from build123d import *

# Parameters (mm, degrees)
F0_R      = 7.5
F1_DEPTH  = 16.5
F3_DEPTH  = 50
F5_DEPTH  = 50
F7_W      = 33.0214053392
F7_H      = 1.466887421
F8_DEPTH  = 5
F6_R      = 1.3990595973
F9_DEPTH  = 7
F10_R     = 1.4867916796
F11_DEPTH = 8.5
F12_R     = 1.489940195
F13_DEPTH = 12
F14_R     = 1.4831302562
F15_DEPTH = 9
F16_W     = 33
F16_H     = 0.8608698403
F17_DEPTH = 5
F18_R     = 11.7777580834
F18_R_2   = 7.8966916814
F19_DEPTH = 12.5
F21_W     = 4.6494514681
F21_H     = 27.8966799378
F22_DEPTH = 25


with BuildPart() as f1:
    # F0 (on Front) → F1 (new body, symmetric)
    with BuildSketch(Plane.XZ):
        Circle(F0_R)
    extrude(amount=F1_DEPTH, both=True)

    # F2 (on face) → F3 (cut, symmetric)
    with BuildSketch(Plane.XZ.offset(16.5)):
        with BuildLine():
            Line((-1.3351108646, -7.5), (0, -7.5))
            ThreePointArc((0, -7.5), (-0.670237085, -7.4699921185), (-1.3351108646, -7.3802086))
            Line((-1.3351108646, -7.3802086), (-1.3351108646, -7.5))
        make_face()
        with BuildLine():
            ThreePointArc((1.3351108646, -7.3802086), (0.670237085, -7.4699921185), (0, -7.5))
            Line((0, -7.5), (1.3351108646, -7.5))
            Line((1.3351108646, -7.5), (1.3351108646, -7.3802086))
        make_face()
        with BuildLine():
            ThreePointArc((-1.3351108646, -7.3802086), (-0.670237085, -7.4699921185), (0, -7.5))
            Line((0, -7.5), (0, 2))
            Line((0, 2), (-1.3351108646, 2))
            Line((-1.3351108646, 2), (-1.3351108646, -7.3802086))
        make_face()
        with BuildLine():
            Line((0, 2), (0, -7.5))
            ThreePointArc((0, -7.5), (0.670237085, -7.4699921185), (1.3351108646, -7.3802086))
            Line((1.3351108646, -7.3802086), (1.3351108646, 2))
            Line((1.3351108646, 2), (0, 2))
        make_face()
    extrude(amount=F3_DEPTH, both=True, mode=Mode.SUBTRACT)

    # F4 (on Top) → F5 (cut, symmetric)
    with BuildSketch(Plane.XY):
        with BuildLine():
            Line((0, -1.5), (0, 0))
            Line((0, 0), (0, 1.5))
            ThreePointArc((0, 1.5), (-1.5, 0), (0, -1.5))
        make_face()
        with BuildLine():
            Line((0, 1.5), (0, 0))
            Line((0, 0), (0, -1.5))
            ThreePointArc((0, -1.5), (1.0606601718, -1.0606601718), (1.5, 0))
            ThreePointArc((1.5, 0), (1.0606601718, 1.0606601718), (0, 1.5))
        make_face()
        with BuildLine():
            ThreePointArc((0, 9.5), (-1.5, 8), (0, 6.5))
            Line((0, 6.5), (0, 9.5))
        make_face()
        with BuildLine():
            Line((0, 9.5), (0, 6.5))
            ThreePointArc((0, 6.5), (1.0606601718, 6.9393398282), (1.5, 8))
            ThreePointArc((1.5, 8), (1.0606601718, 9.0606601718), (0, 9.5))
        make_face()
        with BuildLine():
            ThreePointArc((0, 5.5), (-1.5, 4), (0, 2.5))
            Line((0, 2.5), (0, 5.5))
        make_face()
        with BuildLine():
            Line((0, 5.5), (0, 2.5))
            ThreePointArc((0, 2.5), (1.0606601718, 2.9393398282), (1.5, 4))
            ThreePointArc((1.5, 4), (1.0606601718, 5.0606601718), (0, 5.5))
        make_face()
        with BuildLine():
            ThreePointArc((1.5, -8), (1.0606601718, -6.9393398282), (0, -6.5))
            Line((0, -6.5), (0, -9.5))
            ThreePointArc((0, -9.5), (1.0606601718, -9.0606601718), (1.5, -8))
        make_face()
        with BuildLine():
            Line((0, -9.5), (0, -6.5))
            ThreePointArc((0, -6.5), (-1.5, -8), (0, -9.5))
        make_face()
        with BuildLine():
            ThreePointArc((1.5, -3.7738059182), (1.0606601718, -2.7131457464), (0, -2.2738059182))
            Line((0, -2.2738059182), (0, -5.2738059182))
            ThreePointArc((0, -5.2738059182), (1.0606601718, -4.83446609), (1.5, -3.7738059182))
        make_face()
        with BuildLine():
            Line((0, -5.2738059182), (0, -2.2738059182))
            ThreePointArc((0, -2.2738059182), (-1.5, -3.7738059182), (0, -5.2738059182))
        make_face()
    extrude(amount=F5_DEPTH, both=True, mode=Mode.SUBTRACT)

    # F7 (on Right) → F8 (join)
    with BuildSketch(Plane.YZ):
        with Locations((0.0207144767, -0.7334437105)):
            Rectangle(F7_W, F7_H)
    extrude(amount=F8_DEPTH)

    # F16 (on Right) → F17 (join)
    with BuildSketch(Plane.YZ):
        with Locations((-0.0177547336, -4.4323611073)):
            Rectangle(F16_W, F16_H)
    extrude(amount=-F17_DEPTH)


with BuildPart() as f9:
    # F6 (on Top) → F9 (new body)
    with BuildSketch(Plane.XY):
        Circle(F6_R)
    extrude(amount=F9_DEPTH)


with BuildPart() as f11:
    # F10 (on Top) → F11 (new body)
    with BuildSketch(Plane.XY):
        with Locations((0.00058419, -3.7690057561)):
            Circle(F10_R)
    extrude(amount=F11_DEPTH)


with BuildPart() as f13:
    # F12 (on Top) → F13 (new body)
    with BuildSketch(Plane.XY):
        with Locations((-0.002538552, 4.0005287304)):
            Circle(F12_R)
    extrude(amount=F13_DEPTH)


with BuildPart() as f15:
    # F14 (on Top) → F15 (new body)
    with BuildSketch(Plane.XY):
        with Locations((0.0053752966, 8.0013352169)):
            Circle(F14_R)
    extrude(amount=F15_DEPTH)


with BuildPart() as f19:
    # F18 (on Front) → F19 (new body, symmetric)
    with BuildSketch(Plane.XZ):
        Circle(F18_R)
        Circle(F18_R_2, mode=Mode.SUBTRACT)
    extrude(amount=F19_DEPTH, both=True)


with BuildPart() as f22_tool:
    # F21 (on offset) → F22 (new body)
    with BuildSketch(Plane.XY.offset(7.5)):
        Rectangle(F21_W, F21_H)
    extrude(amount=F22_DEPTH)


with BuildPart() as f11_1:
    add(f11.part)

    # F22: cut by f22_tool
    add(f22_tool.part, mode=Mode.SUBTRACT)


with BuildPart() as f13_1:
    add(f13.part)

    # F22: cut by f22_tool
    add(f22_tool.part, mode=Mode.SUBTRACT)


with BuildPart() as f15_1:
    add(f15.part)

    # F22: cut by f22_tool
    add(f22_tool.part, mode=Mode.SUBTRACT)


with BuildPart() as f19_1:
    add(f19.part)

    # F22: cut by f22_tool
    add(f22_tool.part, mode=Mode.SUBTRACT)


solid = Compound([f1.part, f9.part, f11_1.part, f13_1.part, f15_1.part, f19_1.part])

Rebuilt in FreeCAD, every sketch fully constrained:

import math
import FreeCAD as App
import Part
import Sketcher
Q = App.Units.Quantity


def add_polygon(sketch, points):
    """Adds a closed chain of lines whose ends are joined by coincident constraints."""
    first, n = sketch.GeometryCount, len(points)
    for a, b in zip(points, points[1:] + points[:1]):
        sketch.addGeometry(Part.LineSegment(App.Vector(*a, 0), App.Vector(*b, 0)), False)
    for i in range(n):
        sketch.addConstraint(Sketcher.Constraint("Coincident", first + i, 2, first + (i + 1) % n, 1))

doc = App.newDocument("Part")
body = doc.addObject("PartDesign::Body", "Body")

sketch1 = doc.addObject("Sketcher::SketchObject", "Sketch")
body.addObject(sketch1)
sketch1.AttachmentSupport = (doc.XZ_Plane, [""])
sketch1.MapMode = "FlatFace"
sketch1.addGeometry(Part.Circle(App.Vector(0, 0, 0), App.Vector(0, 0, 1), 7.5), False)
sketch1.addConstraint(Sketcher.Constraint("Coincident", 0, 3, -1, 1))
sketch1.addConstraint(Sketcher.Constraint("Diameter", 0, Q("15 mm")))
pad1 = doc.addObject("PartDesign::Pad", "Pad")
body.addObject(pad1)
pad1.Profile = sketch1
pad1.Length = 33
pad1.Midplane = True

sketch2 = doc.addObject("Sketcher::SketchObject", "Sketch001")
body.addObject(sketch2)
sketch2.AttachmentSupport = (doc.XZ_Plane, [""])
sketch2.MapMode = "FlatFace"
sketch2.AttachmentOffset = App.Placement(App.Vector(0, 0, 16.5), App.Rotation())
add_polygon(sketch2, [(-1.335111, -7.5), (1.335111, -7.5), (1.335111, 2), (-1.335111, 2)])
sketch2.addConstraint(Sketcher.Constraint("Horizontal", 0))
sketch2.addConstraint(Sketcher.Constraint("Vertical", 1))
sketch2.addConstraint(Sketcher.Constraint("Horizontal", 2))
sketch2.addConstraint(Sketcher.Constraint("Vertical", 3))
sketch2.addConstraint(Sketcher.Constraint("DistanceY", 1, 1, 1, 2, Q("9.5 mm")))
sketch2.addConstraint(Sketcher.Constraint("DistanceY", -1, 1, 1, 2, Q("2 mm")))
sketch2.addConstraint(Sketcher.Constraint("DistanceX", 0, 1, 0, 2, Q("2.670222 mm")))
sketch2.addConstraint(Sketcher.Constraint("DistanceX", -1, 1, 0, 2, Q("1.335111 mm")))
pocket1 = doc.addObject("PartDesign::Pocket", "Pocket")
body.addObject(pocket1)
pocket1.Profile = sketch2
pocket1.Length = 100
pocket1.Midplane = True

sketch3 = doc.addObject("Sketcher::SketchObject", "Sketch002")
body.addObject(sketch3)
sketch3.AttachmentSupport = (doc.XY_Plane, [""])
sketch3.MapMode = "FlatFace"
sketch3.addGeometry(Part.ArcOfCircle(Part.Circle(App.Vector(0, 0, 0), App.Vector(0, 0, 1), 1.5), math.radians(90), math.radians(270)), False)
sketch3.addGeometry(Part.ArcOfCircle(Part.Circle(App.Vector(0, 0, 0), App.Vector(0, 0, 1), 1.5), math.radians(-90), math.radians(0)), False)
sketch3.addGeometry(Part.ArcOfCircle(Part.Circle(App.Vector(0, 0, 0), App.Vector(0, 0, 1), 1.5), math.radians(0), math.radians(90)), False)
sketch3.addGeometry(Part.ArcOfCircle(Part.Circle(App.Vector(0, 8, 0), App.Vector(0, 0, 1), 1.5), math.radians(90), math.radians(270)), False)
sketch3.addGeometry(Part.ArcOfCircle(Part.Circle(App.Vector(0, 8, 0), App.Vector(0, 0, 1), 1.5), math.radians(-90), math.radians(0)), False)
sketch3.addGeometry(Part.ArcOfCircle(Part.Circle(App.Vector(0, 8, 0), App.Vector(0, 0, 1), 1.5), math.radians(0), math.radians(90)), False)
sketch3.addGeometry(Part.ArcOfCircle(Part.Circle(App.Vector(0, 4, 0), App.Vector(0, 0, 1), 1.5), math.radians(90), math.radians(270)), False)
sketch3.addGeometry(Part.ArcOfCircle(Part.Circle(App.Vector(0, 4, 0), App.Vector(0, 0, 1), 1.5), math.radians(-90), math.radians(0)), False)
sketch3.addGeometry(Part.ArcOfCircle(Part.Circle(App.Vector(0, 4, 0), App.Vector(0, 0, 1), 1.5), math.radians(0), math.radians(90)), False)
sketch3.addGeometry(Part.ArcOfCircle(Part.Circle(App.Vector(0, -8, 0), App.Vector(0, 0, 1), 1.5), math.radians(0), math.radians(90)), False)
sketch3.addGeometry(Part.ArcOfCircle(Part.Circle(App.Vector(0, -8, 0), App.Vector(0, 0, 1), 1.5), math.radians(90), math.radians(270)), False)
sketch3.addGeometry(Part.ArcOfCircle(Part.Circle(App.Vector(0, -8, 0), App.Vector(0, 0, 1), 1.5), math.radians(-90), math.radians(0)), False)
sketch3.addGeometry(Part.ArcOfCircle(Part.Circle(App.Vector(0, -3.773806, 0), App.Vector(0, 0, 1), 1.5), math.radians(0), math.radians(90)), False)
sketch3.addGeometry(Part.ArcOfCircle(Part.Circle(App.Vector(0, -3.773806, 0), App.Vector(0, 0, 1), 1.5), math.radians(90), math.radians(270)), False)
sketch3.addGeometry(Part.ArcOfCircle(Part.Circle(App.Vector(0, -3.773806, 0), App.Vector(0, 0, 1), 1.5), math.radians(-90), math.radians(0)), False)
sketch3.addConstraint(Sketcher.Constraint("Tangent", 0, 2, 1, 1))
sketch3.addConstraint(Sketcher.Constraint("Tangent", 1, 2, 2, 1))
sketch3.addConstraint(Sketcher.Constraint("Tangent", 2, 2, 0, 1))
sketch3.addConstraint(Sketcher.Constraint("Tangent", 3, 2, 4, 1))
sketch3.addConstraint(Sketcher.Constraint("Tangent", 4, 2, 5, 1))
sketch3.addConstraint(Sketcher.Constraint("Tangent", 5, 2, 3, 1))
sketch3.addConstraint(Sketcher.Constraint("Tangent", 6, 2, 7, 1))
sketch3.addConstraint(Sketcher.Constraint("Tangent", 7, 2, 8, 1))
sketch3.addConstraint(Sketcher.Constraint("Tangent", 8, 2, 6, 1))
sketch3.addConstraint(Sketcher.Constraint("Tangent", 9, 2, 10, 1))
sketch3.addConstraint(Sketcher.Constraint("Tangent", 10, 2, 11, 1))
sketch3.addConstraint(Sketcher.Constraint("Tangent", 11, 2, 9, 1))
sketch3.addConstraint(Sketcher.Constraint("Tangent", 12, 2, 13, 1))
sketch3.addConstraint(Sketcher.Constraint("Tangent", 13, 2, 14, 1))
sketch3.addConstraint(Sketcher.Constraint("Tangent", 14, 2, 12, 1))
sketch3.addConstraint(Sketcher.Constraint("Coincident", 0, 3, -1, 1))
sketch3.addConstraint(Sketcher.Constraint("Equal", 2, 3))
sketch3.addConstraint(Sketcher.Constraint("Equal", 5, 6))
sketch3.addConstraint(Sketcher.Constraint("Equal", 8, 9))
sketch3.addConstraint(Sketcher.Constraint("Equal", 11, 12))
sketch3.addConstraint(Sketcher.Constraint("Symmetric", 3, 3, 9, 3, -1, 1))
sketch3.addConstraint(Sketcher.Constraint("Symmetric", 4, 2, 11, 2, -1))
sketch3.addConstraint(Sketcher.Constraint("PointOnObject", 6, 3, -2))
sketch3.addConstraint(Sketcher.Constraint("PointOnObject", 12, 3, -2))
sketch3.addConstraint(Sketcher.Constraint("PointOnObject", 0, 2, -2))
sketch3.addConstraint(Sketcher.Constraint("PointOnObject", 1, 2, -1))
sketch3.addConstraint(Sketcher.Constraint("PointOnObject", 2, 2, -2))
sketch3.addConstraint(Sketcher.Constraint("PointOnObject", 3, 2, -2))
sketch3.addConstraint(Sketcher.Constraint("PointOnObject", 5, 2, -2))
sketch3.addConstraint(Sketcher.Constraint("PointOnObject", 6, 2, -2))
sketch3.addConstraint(Sketcher.Constraint("PointOnObject", 8, 2, -2))
sketch3.addConstraint(Sketcher.Constraint("PointOnObject", 9, 2, -2))
sketch3.addConstraint(Sketcher.Constraint("PointOnObject", 10, 2, -2))
sketch3.addConstraint(Sketcher.Constraint("PointOnObject", 12, 2, -2))
sketch3.addConstraint(Sketcher.Constraint("PointOnObject", 13, 2, -2))
sketch3.addConstraint(Sketcher.Constraint("Horizontal", 5, 3, 4, 2))
sketch3.addConstraint(Sketcher.Constraint("Horizontal", 8, 3, 7, 2))
sketch3.addConstraint(Sketcher.Constraint("Horizontal", 13, 3, 14, 2))
sketch3.addConstraint(Sketcher.Constraint("Radius", 0, Q("1.5 mm")))
sketch3.addConstraint(Sketcher.Constraint("DistanceY", -1, 1, 3, 3, Q("8 mm")))
sketch3.addConstraint(Sketcher.Constraint("DistanceY", -1, 1, 6, 3, Q("4 mm")))
sketch3.addConstraint(Sketcher.Constraint("DistanceY", 12, 3, -1, 1, Q("3.773806 mm")))
pocket2 = doc.addObject("PartDesign::Pocket", "Pocket001")
body.addObject(pocket2)
pocket2.Profile = sketch3
pocket2.Length = 100
pocket2.Midplane = True

sketch4 = doc.addObject("Sketcher::SketchObject", "Sketch003")
body.addObject(sketch4)
sketch4.AttachmentSupport = (doc.YZ_Plane, [""])
sketch4.MapMode = "FlatFace"
add_polygon(sketch4, [(-16.489988, 0), (-16.489988, -1.466887), (16.531417, -1.466887), (16.531417, 0)])
sketch4.addConstraint(Sketcher.Constraint("Vertical", 0))
sketch4.addConstraint(Sketcher.Constraint("Horizontal", 1))
sketch4.addConstraint(Sketcher.Constraint("Vertical", 2))
sketch4.addConstraint(Sketcher.Constraint("Horizontal", 3))
sketch4.addConstraint(Sketcher.Constraint("PointOnObject", 2, 2, -1))
sketch4.addConstraint(Sketcher.Constraint("DistanceX", 1, 1, 1, 2, Q("33.021405 mm")))
sketch4.addConstraint(Sketcher.Constraint("DistanceY", 0, 2, 0, 1, Q("1.466887 mm")))
sketch4.addConstraint(Sketcher.Constraint("DistanceX", 0, 2, -1, 1, Q("16.489988 mm")))
pad2 = doc.addObject("PartDesign::Pad", "Pad001")
body.addObject(pad2)
pad2.Profile = sketch4
pad2.Length = 5

sketch5 = doc.addObject("Sketcher::SketchObject", "Sketch004")
body.addObject(sketch5)
sketch5.AttachmentSupport = (doc.YZ_Plane, [""])
sketch5.MapMode = "FlatFace"
add_polygon(sketch5, [(-16.517755, -4.001926), (-16.517755, -4.862796), (16.482245, -4.862796), (16.482245, -4.001926)])
sketch5.addConstraint(Sketcher.Constraint("Vertical", 0))
sketch5.addConstraint(Sketcher.Constraint("Horizontal", 1))
sketch5.addConstraint(Sketcher.Constraint("Vertical", 2))
sketch5.addConstraint(Sketcher.Constraint("Horizontal", 3))
sketch5.addConstraint(Sketcher.Constraint("DistanceX", 1, 1, 1, 2, Q("33 mm")))
sketch5.addConstraint(Sketcher.Constraint("DistanceY", 0, 2, 0, 1, Q("0.86087 mm")))
sketch5.addConstraint(Sketcher.Constraint("DistanceX", 0, 2, -1, 1, Q("16.517755 mm")))
sketch5.addConstraint(Sketcher.Constraint("DistanceY", 0, 2, -1, 1, Q("4.862796 mm")))
pad3 = doc.addObject("PartDesign::Pad", "Pad002")
body.addObject(pad3)
pad3.Profile = sketch5
pad3.Length = 5
pad3.Reversed = True
body2 = doc.addObject("PartDesign::Body", "Body001")

sketch6 = doc.addObject("Sketcher::SketchObject", "Sketch005")
body2.addObject(sketch6)
sketch6.AttachmentSupport = (doc.getObject("XY_Plane001"), [""])
sketch6.MapMode = "FlatFace"
sketch6.addGeometry(Part.Circle(App.Vector(0, 0, 0), App.Vector(0, 0, 1), 1.39906), False)
sketch6.addConstraint(Sketcher.Constraint("Coincident", 0, 3, -1, 1))
sketch6.addConstraint(Sketcher.Constraint("Diameter", 0, Q("2.798119 mm")))
pad4 = doc.addObject("PartDesign::Pad", "Pad003")
body2.addObject(pad4)
pad4.Profile = sketch6
pad4.Length = 7
body3 = doc.addObject("PartDesign::Body", "Body002")

sketch7 = doc.addObject("Sketcher::SketchObject", "Sketch006")
body3.addObject(sketch7)
sketch7.AttachmentSupport = (doc.getObject("XY_Plane002"), [""])
sketch7.MapMode = "FlatFace"
sketch7.addGeometry(Part.Circle(App.Vector(0.000584, -3.769006, 0), App.Vector(0, 0, 1), 1.486792), False)
sketch7.addConstraint(Sketcher.Constraint("Diameter", 0, Q("2.973583 mm")))
sketch7.addConstraint(Sketcher.Constraint("DistanceX", -1, 1, 0, 3, Q("0.000584 mm")))
sketch7.addConstraint(Sketcher.Constraint("DistanceY", 0, 3, -1, 1, Q("3.769006 mm")))
pad5 = doc.addObject("PartDesign::Pad", "Pad004")
body3.addObject(pad5)
pad5.Profile = sketch7
pad5.Length = 8.5
body4 = doc.addObject("PartDesign::Body", "Body003")

sketch8 = doc.addObject("Sketcher::SketchObject", "Sketch007")
body4.addObject(sketch8)
sketch8.AttachmentSupport = (doc.getObject("XY_Plane003"), [""])
sketch8.MapMode = "FlatFace"
sketch8.addGeometry(Part.Circle(App.Vector(-0.002539, 4.000529, 0), App.Vector(0, 0, 1), 1.48994), False)
sketch8.addConstraint(Sketcher.Constraint("Diameter", 0, Q("2.97988 mm")))
sketch8.addConstraint(Sketcher.Constraint("DistanceX", 0, 3, -1, 1, Q("0.002539 mm")))
sketch8.addConstraint(Sketcher.Constraint("DistanceY", -1, 1, 0, 3, Q("4.000529 mm")))
pad6 = doc.addObject("PartDesign::Pad", "Pad005")
body4.addObject(pad6)
pad6.Profile = sketch8
pad6.Length = 12
body5 = doc.addObject("PartDesign::Body", "Body004")

sketch9 = doc.addObject("Sketcher::SketchObject", "Sketch008")
body5.addObject(sketch9)
sketch9.AttachmentSupport = (doc.getObject("XY_Plane004"), [""])
sketch9.MapMode = "FlatFace"
sketch9.addGeometry(Part.Circle(App.Vector(0.005375, 8.001335, 0), App.Vector(0, 0, 1), 1.48313), False)
sketch9.addConstraint(Sketcher.Constraint("Diameter", 0, Q("2.966261 mm")))
sketch9.addConstraint(Sketcher.Constraint("DistanceX", -1, 1, 0, 3, Q("0.005375 mm")))
sketch9.addConstraint(Sketcher.Constraint("DistanceY", -1, 1, 0, 3, Q("8.001335 mm")))
pad7 = doc.addObject("PartDesign::Pad", "Pad006")
body5.addObject(pad7)
pad7.Profile = sketch9
pad7.Length = 9
body6 = doc.addObject("PartDesign::Body", "Body005")

sketch10 = doc.addObject("Sketcher::SketchObject", "Sketch009")
body6.addObject(sketch10)
sketch10.AttachmentSupport = (doc.getObject("XZ_Plane005"), [""])
sketch10.MapMode = "FlatFace"
sketch10.addGeometry(Part.Circle(App.Vector(0, 0, 0), App.Vector(0, 0, 1), 11.777758), False)
sketch10.addGeometry(Part.Circle(App.Vector(0, 0, 0), App.Vector(0, 0, 1), 7.896692), False)
sketch10.addConstraint(Sketcher.Constraint("Coincident", 0, 3, -1, 1))
sketch10.addConstraint(Sketcher.Constraint("Coincident", 1, 3, -1, 1))
sketch10.addConstraint(Sketcher.Constraint("Diameter", 0, Q("23.555516 mm")))
sketch10.addConstraint(Sketcher.Constraint("Diameter", 1, Q("15.793383 mm")))
pad8 = doc.addObject("PartDesign::Pad", "Pad007")
body6.addObject(pad8)
pad8.Profile = sketch10
pad8.Length = 25
pad8.Midplane = True
body7 = doc.addObject("PartDesign::Body", "Body006")

sketch11 = doc.addObject("Sketcher::SketchObject", "Sketch010")
body7.addObject(sketch11)
sketch11.AttachmentSupport = (doc.getObject("XY_Plane006"), [""])
sketch11.MapMode = "FlatFace"
sketch11.AttachmentOffset = App.Placement(App.Vector(0, 0, 7.5), App.Rotation())
add_polygon(sketch11, [(-2.324726, 13.94834), (-2.324726, -13.94834), (2.324726, -13.94834), (2.324726, 13.94834)])
sketch11.addConstraint(Sketcher.Constraint("Vertical", 0))
sketch11.addConstraint(Sketcher.Constraint("Horizontal", 1))
sketch11.addConstraint(Sketcher.Constraint("Vertical", 2))
sketch11.addConstraint(Sketcher.Constraint("Horizontal", 3))
sketch11.addConstraint(Sketcher.Constraint("Symmetric", 0, 2, 2, 2, -1, 1))
sketch11.addConstraint(Sketcher.Constraint("DistanceX", 1, 1, 1, 2, Q("4.649451 mm")))
sketch11.addConstraint(Sketcher.Constraint("DistanceY", 0, 2, 0, 1, Q("27.89668 mm")))
pad9 = doc.addObject("PartDesign::Pad", "Pad008")
body7.addObject(pad9)
pad9.Profile = sketch11
pad9.Length = 25
doc.recompute()

body8 = doc.addObject("PartDesign::Body", "Body007")
body8.BaseFeature = body7
boolean = doc.addObject("PartDesign::Boolean", "Boolean")
body3.addObject(boolean)
boolean.Type = "Cut"
boolean.addObjects([body8])
doc.recompute()

body9 = doc.addObject("PartDesign::Body", "Body008")
body9.BaseFeature = body7
boolean2 = doc.addObject("PartDesign::Boolean", "Boolean001")
body4.addObject(boolean2)
boolean2.Type = "Cut"
boolean2.addObjects([body9])
doc.recompute()

body10 = doc.addObject("PartDesign::Body", "Body009")
body10.BaseFeature = body7
boolean3 = doc.addObject("PartDesign::Boolean", "Boolean002")
body5.addObject(boolean3)
boolean3.Type = "Cut"
boolean3.addObjects([body10])
doc.recompute()

boolean4 = doc.addObject("PartDesign::Boolean", "Boolean003")
body6.addObject(boolean4)
boolean4.Type = "Cut"
boolean4.addObjects([body7])

doc.recompute()
